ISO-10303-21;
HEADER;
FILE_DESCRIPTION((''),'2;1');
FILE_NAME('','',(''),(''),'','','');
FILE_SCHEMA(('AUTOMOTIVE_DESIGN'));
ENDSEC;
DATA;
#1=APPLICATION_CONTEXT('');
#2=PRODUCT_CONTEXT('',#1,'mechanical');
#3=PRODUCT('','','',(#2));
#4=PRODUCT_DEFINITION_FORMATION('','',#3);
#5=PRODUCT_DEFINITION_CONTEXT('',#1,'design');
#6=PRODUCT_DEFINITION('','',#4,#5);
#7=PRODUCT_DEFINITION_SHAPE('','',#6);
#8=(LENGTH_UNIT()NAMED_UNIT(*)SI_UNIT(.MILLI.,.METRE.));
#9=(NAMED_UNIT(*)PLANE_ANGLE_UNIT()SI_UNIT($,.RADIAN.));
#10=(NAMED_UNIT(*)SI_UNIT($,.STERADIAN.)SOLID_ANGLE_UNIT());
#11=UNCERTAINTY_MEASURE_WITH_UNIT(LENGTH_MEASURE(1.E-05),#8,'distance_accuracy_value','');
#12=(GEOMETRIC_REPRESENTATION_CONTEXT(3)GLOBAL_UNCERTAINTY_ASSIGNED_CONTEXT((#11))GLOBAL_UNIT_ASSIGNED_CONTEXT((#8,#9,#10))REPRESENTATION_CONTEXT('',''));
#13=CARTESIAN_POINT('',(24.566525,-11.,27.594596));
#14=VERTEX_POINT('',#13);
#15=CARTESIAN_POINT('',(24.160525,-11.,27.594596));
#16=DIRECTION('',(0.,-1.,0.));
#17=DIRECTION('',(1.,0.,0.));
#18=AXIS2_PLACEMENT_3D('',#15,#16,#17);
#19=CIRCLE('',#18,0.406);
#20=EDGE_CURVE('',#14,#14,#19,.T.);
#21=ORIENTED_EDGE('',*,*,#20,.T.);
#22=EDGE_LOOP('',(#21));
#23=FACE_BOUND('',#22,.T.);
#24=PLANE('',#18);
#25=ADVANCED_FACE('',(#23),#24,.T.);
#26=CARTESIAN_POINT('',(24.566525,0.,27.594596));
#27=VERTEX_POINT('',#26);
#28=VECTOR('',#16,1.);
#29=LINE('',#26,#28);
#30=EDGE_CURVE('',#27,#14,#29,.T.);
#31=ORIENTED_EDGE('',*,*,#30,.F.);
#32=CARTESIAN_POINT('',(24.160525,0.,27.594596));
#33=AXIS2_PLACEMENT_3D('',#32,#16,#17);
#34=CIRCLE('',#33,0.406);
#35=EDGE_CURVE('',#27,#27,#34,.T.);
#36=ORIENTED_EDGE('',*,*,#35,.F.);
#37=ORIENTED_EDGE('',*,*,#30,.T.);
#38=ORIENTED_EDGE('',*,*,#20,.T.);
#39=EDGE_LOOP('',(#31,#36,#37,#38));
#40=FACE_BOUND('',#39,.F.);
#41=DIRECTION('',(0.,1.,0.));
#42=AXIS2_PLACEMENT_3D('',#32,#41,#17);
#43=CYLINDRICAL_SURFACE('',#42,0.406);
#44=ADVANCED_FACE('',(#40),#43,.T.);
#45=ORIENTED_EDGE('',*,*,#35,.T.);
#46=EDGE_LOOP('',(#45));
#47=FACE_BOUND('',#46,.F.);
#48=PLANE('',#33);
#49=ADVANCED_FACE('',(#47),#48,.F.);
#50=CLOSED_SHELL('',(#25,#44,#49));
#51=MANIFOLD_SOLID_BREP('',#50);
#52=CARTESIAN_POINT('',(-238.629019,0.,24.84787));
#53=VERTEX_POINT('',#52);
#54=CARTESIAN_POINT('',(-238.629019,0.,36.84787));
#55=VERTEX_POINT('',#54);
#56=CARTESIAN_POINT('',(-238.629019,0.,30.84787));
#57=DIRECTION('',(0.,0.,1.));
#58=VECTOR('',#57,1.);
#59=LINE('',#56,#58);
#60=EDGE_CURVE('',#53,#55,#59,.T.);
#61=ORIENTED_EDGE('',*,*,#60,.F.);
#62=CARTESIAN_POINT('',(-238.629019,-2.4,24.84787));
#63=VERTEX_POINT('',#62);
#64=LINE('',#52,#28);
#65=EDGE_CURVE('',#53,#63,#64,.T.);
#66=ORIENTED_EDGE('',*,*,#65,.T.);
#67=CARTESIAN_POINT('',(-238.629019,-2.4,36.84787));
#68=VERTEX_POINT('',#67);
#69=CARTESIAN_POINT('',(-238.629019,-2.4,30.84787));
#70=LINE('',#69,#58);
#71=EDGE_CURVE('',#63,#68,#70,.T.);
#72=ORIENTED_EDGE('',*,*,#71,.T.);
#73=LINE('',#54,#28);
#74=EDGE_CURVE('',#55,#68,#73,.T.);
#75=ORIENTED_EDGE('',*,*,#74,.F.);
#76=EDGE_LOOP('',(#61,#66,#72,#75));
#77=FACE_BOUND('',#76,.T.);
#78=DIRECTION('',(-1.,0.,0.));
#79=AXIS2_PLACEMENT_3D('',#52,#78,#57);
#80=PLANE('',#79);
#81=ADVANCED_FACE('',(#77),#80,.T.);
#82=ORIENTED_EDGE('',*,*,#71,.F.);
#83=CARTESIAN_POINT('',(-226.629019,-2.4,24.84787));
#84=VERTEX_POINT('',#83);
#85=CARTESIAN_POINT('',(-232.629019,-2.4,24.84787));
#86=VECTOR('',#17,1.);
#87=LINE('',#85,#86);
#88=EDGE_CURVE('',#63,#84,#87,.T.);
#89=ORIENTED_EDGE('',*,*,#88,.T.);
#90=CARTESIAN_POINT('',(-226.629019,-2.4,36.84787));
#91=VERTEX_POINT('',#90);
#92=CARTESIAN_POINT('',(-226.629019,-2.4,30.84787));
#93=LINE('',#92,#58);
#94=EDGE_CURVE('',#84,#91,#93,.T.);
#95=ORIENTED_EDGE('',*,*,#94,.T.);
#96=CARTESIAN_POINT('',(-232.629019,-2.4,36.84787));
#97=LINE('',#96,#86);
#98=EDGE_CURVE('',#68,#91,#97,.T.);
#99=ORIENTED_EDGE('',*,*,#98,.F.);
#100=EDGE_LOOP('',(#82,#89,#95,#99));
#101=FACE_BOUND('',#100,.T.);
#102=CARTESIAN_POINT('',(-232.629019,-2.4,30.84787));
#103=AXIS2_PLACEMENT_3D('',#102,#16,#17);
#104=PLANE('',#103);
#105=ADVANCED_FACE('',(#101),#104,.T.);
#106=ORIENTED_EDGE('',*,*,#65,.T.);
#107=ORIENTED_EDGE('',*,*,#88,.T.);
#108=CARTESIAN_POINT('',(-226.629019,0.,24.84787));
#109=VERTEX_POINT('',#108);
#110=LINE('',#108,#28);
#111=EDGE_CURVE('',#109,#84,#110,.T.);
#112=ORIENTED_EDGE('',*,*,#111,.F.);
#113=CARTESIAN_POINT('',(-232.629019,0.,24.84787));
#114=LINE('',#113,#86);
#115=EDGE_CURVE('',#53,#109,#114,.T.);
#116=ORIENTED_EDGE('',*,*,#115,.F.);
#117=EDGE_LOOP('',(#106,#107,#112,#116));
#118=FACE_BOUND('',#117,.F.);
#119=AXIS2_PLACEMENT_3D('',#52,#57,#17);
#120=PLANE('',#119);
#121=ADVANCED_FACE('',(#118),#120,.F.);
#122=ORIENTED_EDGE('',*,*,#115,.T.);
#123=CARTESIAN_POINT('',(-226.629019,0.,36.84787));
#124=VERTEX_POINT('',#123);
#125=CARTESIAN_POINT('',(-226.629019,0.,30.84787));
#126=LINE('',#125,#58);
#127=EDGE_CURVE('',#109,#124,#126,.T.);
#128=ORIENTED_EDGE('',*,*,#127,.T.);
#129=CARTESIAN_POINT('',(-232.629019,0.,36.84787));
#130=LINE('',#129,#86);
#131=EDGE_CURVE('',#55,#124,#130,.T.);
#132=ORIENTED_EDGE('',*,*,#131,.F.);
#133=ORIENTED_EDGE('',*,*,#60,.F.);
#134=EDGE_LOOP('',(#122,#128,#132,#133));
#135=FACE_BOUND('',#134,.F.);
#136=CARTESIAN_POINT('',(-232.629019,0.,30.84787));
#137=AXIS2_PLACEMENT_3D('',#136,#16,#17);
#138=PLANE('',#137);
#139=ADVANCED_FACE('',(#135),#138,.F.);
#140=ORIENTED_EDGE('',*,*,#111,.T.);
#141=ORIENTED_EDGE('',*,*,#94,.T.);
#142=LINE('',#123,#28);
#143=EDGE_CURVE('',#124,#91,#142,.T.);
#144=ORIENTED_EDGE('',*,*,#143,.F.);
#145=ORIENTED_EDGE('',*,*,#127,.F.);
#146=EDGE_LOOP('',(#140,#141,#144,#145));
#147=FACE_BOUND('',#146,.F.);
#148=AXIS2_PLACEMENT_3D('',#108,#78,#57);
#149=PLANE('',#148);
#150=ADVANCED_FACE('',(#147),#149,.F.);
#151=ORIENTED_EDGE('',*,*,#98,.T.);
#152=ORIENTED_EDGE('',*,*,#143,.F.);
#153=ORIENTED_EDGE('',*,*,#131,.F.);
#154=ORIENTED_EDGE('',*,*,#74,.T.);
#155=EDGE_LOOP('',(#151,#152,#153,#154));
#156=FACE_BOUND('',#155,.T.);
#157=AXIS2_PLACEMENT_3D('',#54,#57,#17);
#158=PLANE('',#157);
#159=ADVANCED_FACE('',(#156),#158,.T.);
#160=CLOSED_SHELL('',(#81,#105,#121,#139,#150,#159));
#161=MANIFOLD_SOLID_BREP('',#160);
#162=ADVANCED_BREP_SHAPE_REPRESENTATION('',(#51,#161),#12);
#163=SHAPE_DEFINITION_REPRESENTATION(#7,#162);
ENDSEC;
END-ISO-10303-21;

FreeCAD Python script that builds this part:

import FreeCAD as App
import Part
import Sketcher
from FreeCAD import Vector
Q = App.Units.Quantity


def add_polygon(sketch, points):
    """Adds a closed chain of lines whose ends are joined by coincident constraints."""
    first, n = sketch.GeometryCount, len(points)
    for a, b in zip(points, points[1:] + points[:1]):
        sketch.addGeometry(Part.LineSegment(App.Vector(*a, 0), App.Vector(*b, 0)), False)
    for i in range(n):
        sketch.addConstraint(Sketcher.Constraint("Coincident", first + i, 2, first + (i + 1) % n, 1))

doc = App.newDocument("Part")
body = doc.addObject("PartDesign::Body", "Body")

sketch1 = body.newObject("Sketcher::SketchObject", "Sketch")
sketch1.AttachmentSupport = (doc.getObject("XZ_Plane"), [""])
sketch1.MapMode = "FlatFace"
sketch1.addGeometry(Part.Circle(Vector(24.160525, 27.594596, 0), Vector(0, 0, 1), 0.406), False)
sketch1.addConstraint(Sketcher.Constraint("Diameter", 0, Q("0.812 mm")))
sketch1.addConstraint(Sketcher.Constraint("DistanceX", -1, 1, 0, 3, Q("24.160525 mm")))
sketch1.addConstraint(Sketcher.Constraint("DistanceY", -1, 1, 0, 3, Q("27.594596 mm")))
pad1 = body.newObject("PartDesign::Pad", "Pad")
pad1.Profile = sketch1
pad1.Length = 11
body2 = doc.addObject("PartDesign::Body", "Body001")

sketch2 = body2.newObject("Sketcher::SketchObject", "Sketch001")
sketch2.AttachmentSupport = (doc.getObject("XZ_Plane001"), [""])
sketch2.MapMode = "FlatFace"
add_polygon(sketch2, [(-238.629019, 36.84787), (-238.629019, 24.84787), (-226.629019, 24.84787), (-226.629019, 36.84787)])
sketch2.addConstraint(Sketcher.Constraint("Vertical", 0))
sketch2.addConstraint(Sketcher.Constraint("Horizontal", 1))
sketch2.addConstraint(Sketcher.Constraint("Vertical", 2))
sketch2.addConstraint(Sketcher.Constraint("Horizontal", 3))
sketch2.addConstraint(Sketcher.Constraint("Equal", 3, 0))
sketch2.addConstraint(Sketcher.Constraint("DistanceX", 1, 1, 1, 2, Q("12 mm")))
sketch2.addConstraint(Sketcher.Constraint("DistanceX", 0, 2, -1, 1, Q("238.629019 mm")))
sketch2.addConstraint(Sketcher.Constraint("DistanceY", -1, 1, 0, 2, Q("24.84787 mm")))
pad2 = body2.newObject("PartDesign::Pad", "Pad001")
pad2.Profile = sketch2
pad2.Length = 2.4

doc.recompute()
